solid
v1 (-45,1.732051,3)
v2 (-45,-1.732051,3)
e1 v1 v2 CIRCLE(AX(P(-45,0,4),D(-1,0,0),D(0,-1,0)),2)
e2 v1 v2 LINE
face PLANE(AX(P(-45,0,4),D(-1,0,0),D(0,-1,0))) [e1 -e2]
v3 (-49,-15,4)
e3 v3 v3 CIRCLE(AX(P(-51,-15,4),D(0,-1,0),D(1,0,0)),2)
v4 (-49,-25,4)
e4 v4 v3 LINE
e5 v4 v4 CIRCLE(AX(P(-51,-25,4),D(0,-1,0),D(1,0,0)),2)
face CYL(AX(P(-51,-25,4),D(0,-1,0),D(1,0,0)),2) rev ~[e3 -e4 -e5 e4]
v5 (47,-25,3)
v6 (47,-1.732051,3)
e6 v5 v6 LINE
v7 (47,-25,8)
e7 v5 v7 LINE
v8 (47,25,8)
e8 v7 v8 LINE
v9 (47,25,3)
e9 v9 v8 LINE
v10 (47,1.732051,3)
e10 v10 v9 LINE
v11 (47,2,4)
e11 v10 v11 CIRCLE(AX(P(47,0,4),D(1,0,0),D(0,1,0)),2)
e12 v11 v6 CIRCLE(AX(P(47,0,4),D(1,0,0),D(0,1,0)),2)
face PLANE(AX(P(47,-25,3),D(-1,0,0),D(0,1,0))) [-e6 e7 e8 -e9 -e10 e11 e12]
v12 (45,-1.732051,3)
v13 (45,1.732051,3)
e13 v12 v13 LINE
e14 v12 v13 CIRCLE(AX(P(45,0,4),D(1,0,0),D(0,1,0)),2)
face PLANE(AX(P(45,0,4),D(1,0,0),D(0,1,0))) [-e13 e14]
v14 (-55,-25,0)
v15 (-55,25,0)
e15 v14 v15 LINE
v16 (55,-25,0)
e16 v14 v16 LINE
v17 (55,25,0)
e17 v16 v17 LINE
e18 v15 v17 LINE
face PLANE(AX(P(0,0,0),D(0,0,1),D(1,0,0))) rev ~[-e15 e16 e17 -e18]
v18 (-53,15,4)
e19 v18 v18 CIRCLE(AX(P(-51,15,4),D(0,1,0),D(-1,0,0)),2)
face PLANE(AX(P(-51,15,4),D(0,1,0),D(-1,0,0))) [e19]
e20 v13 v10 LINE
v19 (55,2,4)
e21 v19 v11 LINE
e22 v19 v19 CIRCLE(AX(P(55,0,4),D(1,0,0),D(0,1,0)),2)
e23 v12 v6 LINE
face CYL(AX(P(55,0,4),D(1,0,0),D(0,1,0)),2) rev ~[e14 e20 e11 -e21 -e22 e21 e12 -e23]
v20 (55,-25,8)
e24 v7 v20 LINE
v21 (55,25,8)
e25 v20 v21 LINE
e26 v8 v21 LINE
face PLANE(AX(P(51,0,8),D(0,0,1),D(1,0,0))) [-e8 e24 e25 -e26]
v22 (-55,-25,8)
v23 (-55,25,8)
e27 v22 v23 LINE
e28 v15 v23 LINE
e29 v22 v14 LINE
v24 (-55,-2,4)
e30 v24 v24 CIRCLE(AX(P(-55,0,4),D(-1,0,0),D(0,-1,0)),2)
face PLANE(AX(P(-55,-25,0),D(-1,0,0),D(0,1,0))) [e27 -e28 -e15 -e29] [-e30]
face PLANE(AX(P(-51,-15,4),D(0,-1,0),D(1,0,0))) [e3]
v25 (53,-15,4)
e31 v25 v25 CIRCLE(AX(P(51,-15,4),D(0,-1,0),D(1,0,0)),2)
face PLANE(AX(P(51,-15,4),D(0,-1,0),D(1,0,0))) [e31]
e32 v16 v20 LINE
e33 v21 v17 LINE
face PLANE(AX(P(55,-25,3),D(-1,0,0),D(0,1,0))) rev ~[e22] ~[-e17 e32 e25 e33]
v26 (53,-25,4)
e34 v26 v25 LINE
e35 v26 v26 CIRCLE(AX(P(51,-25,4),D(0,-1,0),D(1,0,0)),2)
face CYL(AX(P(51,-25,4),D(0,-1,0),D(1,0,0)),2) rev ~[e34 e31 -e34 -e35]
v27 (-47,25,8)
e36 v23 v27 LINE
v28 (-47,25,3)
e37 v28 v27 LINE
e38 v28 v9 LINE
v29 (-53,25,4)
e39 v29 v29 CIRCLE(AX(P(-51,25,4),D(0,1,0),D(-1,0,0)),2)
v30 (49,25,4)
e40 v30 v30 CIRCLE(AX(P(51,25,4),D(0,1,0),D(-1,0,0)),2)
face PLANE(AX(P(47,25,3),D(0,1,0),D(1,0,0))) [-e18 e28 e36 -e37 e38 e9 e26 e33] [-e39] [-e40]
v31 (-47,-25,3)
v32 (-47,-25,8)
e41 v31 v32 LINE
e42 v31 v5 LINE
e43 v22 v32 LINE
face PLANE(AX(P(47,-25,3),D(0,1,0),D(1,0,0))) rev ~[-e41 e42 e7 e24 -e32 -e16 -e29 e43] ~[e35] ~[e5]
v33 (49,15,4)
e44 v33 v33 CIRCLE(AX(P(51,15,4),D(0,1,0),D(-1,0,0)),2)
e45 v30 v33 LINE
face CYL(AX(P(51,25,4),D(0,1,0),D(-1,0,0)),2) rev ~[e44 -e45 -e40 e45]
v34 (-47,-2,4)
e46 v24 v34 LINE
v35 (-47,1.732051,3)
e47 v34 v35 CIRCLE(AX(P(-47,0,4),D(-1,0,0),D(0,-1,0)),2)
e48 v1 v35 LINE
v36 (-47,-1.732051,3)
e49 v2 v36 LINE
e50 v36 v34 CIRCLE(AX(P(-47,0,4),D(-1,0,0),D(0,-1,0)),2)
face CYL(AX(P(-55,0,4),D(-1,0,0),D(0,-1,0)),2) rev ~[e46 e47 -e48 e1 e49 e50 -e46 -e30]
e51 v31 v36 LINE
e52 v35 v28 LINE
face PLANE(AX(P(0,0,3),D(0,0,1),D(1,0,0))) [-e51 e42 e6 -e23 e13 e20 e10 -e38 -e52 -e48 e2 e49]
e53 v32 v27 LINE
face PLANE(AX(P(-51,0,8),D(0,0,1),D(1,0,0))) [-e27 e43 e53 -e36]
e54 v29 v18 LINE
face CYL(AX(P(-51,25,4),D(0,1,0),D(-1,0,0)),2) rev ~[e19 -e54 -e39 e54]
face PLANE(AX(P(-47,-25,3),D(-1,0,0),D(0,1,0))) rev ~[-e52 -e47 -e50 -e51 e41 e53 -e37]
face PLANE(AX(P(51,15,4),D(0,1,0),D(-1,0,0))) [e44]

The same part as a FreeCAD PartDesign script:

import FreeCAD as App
import Part
import Sketcher

V = App.Vector

doc = App.newDocument("Part")
params = doc.addObject("Spreadsheet::Sheet", "Params")
for row, (alias, value) in enumerate([
    ("sketch1_width", "110 mm"),
    ("sketch1_height", "50 mm"),
    ("pad1_length", "3 mm"),
    ("sketch2_width", "8 mm"),
    ("sketch2_height", "50 mm"),
    ("pad2_length", "5 mm"),
    ("sketch3_diameter", "4 mm"),
    ("pocket1_length", "10 mm"),
    ("sketch4_diameter", "4 mm"),
    ("pocket2_length", "10 mm"),
    ("sketch5_diameter", "4 mm"),
    ("pocket3_length", "10 mm"),
    ("sketch6_diameter", "4 mm"),
    ("pocket4_length", "10 mm"),
], start=1):
    params.set(f"A{row}", alias)
    params.set(f"B{row}", "=" + value)
    params.setAlias(f"B{row}", alias)

body = doc.addObject("PartDesign::Body", "Body")

# Sketch on XY plane
sketch1 = body.newObject("Sketcher::SketchObject", "Sketch")
sketch1.AttachmentSupport = (doc.getObject("XY_Plane"), [""])
sketch1.MapMode = "FlatFace"
sketch1.addGeometry(Part.LineSegment(V(-55, 25, 0), V(-55, -25, 0)), False)
sketch1.addGeometry(Part.LineSegment(V(-55, -25, 0), V(55, -25, 0)), False)
sketch1.addGeometry(Part.LineSegment(V(55, -25, 0), V(55, 25, 0)), False)
sketch1.addGeometry(Part.LineSegment(V(55, 25, 0), V(-55, 25, 0)), False)
sketch1.addConstraint(Sketcher.Constraint("Coincident", 0, 2, 1, 1))
sketch1.addConstraint(Sketcher.Constraint("Coincident", 1, 2, 2, 1))
sketch1.addConstraint(Sketcher.Constraint("Coincident", 2, 2, 3, 1))
sketch1.addConstraint(Sketcher.Constraint("Coincident", 3, 2, 0, 1))
sketch1.addConstraint(Sketcher.Constraint("Vertical", 0))
sketch1.addConstraint(Sketcher.Constraint("Horizontal", 1))
sketch1.addConstraint(Sketcher.Constraint("Vertical", 2))
sketch1.addConstraint(Sketcher.Constraint("Horizontal", 3))
sketch1.addConstraint(Sketcher.Constraint("Symmetric", 0, 2, 2, 2, -1, 1))
sketch1.addConstraint(Sketcher.Constraint("DistanceX", 1, 1, 1, 2, 110.0))
sketch1.addConstraint(Sketcher.Constraint("DistanceY", 0, 2, 0, 1, 50.0))
sketch1.setExpression("Constraints[9]", "Params.sketch1_width")
sketch1.setExpression("Constraints[10]", "Params.sketch1_height")
pad1 = body.newObject("PartDesign::Pad", "Pad")
pad1.Profile = sketch1
pad1.setExpression("Length", "Params.pad1_length")

# Sketch on XY plane
sketch2 = body.newObject("Sketcher::SketchObject", "Sketch001")
sketch2.AttachmentSupport = (doc.getObject("XY_Plane"), [""])
sketch2.MapMode = "FlatFace"
sketch2.AttachmentOffset = App.Placement(V(0, 0, 3), App.Rotation())
sketch2.addGeometry(Part.LineSegment(V(47, 25, 0), V(47, -25, 0)), False)
sketch2.addGeometry(Part.LineSegment(V(47, -25, 0), V(55, -25, 0)), False)
sketch2.addGeometry(Part.LineSegment(V(55, -25, 0), V(55, 25, 0)), False)
sketch2.addGeometry(Part.LineSegment(V(55, 25, 0), V(47, 25, 0)), False)
sketch2.addGeometry(Part.LineSegment(V(-55, 25, 0), V(-55, -25, 0)), False)
sketch2.addGeometry(Part.LineSegment(V(-55, -25, 0), V(-47, -25, 0)), False)
sketch2.addGeometry(Part.LineSegment(V(-47, -25, 0), V(-47, 25, 0)), False)
sketch2.addGeometry(Part.LineSegment(V(-47, 25, 0), V(-55, 25, 0)), False)
sketch2.addConstraint(Sketcher.Constraint("Coincident", 0, 2, 1, 1))
sketch2.addConstraint(Sketcher.Constraint("Coincident", 1, 2, 2, 1))
sketch2.addConstraint(Sketcher.Constraint("Coincident", 2, 2, 3, 1))
sketch2.addConstraint(Sketcher.Constraint("Coincident", 3, 2, 0, 1))
sketch2.addConstraint(Sketcher.Constraint("Coincident", 4, 2, 5, 1))
sketch2.addConstraint(Sketcher.Constraint("Coincident", 5, 2, 6, 1))
sketch2.addConstraint(Sketcher.Constraint("Coincident", 6, 2, 7, 1))
sketch2.addConstraint(Sketcher.Constraint("Coincident", 7, 2, 4, 1))
sketch2.addConstraint(Sketcher.Constraint("Vertical", 0))
sketch2.addConstraint(Sketcher.Constraint("Horizontal", 1))
sketch2.addConstraint(Sketcher.Constraint("Vertical", 2))
sketch2.addConstraint(Sketcher.Constraint("Horizontal", 3))
sketch2.addConstraint(Sketcher.Constraint("Vertical", 4))
sketch2.addConstraint(Sketcher.Constraint("Horizontal", 5))
sketch2.addConstraint(Sketcher.Constraint("Vertical", 6))
sketch2.addConstraint(Sketcher.Constraint("Horizontal", 7))
sketch2.addConstraint(Sketcher.Constraint("Symmetric", 2, 2, 4, 2, -1, 1))
sketch2.addConstraint(Sketcher.Constraint("Symmetric", 0, 2, 6, 2, -1, 1))
sketch2.addConstraint(Sketcher.Constraint("Horizontal", 1, 2, 4, 2))
sketch2.addConstraint(Sketcher.Constraint("DistanceX", 1, 1, 1, 2, 8.0))
sketch2.addConstraint(Sketcher.Constraint("DistanceY", 0, 2, 0, 1, 50.0))
sketch2.addConstraint(Sketcher.Constraint("DistanceX", -1, 1, 0, 2, 47.0))
sketch2.setExpression("Constraints[19]", "Params.sketch2_width")
sketch2.setExpression("Constraints[20]", "Params.sketch2_height")
pad2 = body.newObject("PartDesign::Pad", "Pad001")
pad2.Profile = sketch2
pad2.setExpression("Length", "Params.pad2_length")

# Sketch on XZ plane
sketch3 = body.newObject("Sketcher::SketchObject", "Sketch002")
sketch3.AttachmentSupport = (doc.getObject("XZ_Plane"), [""])
sketch3.MapMode = "FlatFace"
sketch3.AttachmentOffset = App.Placement(V(0, 0, -25), App.Rotation())
sketch3.addGeometry(Part.Circle(V(-51, 4, 0), V(0, 0, 1), 2), False)
sketch3.addGeometry(Part.Circle(V(51, 4, 0), V(0, 0, 1), 2), False)
sketch3.addConstraint(Sketcher.Constraint("Equal", 0, 1))
sketch3.addConstraint(Sketcher.Constraint("Symmetric", 0, 3, 1, 3, -2))
sketch3.addConstraint(Sketcher.Constraint("Diameter", 0, 4.0))
sketch3.addConstraint(Sketcher.Constraint("DistanceX", 0, 3, -1, 1, 51.0))
sketch3.addConstraint(Sketcher.Constraint("DistanceY", -1, 1, 0, 3, 4.0))
sketch3.setExpression("Constraints[2]", "Params.sketch3_diameter")
pocket1 = body.newObject("PartDesign::Pocket", "Pocket")
pocket1.Profile = sketch3
pocket1.setExpression("Length", "Params.pocket1_length")
pocket1.Reversed = True

# Sketch on XZ plane
sketch4 = body.newObject("Sketcher::SketchObject", "Sketch003")
sketch4.AttachmentSupport = (doc.getObject("XZ_Plane"), [""])
sketch4.MapMode = "FlatFace"
sketch4.AttachmentOffset = App.Placement(V(0, 0, 25), App.Rotation())
sketch4.addGeometry(Part.Circle(V(-51, 4, 0), V(0, 0, 1), 2), False)
sketch4.addGeometry(Part.Circle(V(51, 4, 0), V(0, 0, 1), 2), False)
sketch4.addConstraint(Sketcher.Constraint("Equal", 0, 1))
sketch4.addConstraint(Sketcher.Constraint("Symmetric", 0, 3, 1, 3, -2))
sketch4.addConstraint(Sketcher.Constraint("Diameter", 0, 4.0))
sketch4.addConstraint(Sketcher.Constraint("DistanceX", 0, 3, -1, 1, 51.0))
sketch4.addConstraint(Sketcher.Constraint("DistanceY", -1, 1, 0, 3, 4.0))
sketch4.setExpression("Constraints[2]", "Params.sketch4_diameter")
pocket2 = body.newObject("PartDesign::Pocket", "Pocket001")
pocket2.Profile = sketch4
pocket2.setExpression("Length", "Params.pocket2_length")

# Sketch on YZ plane
sketch5 = body.newObject("Sketcher::SketchObject", "Sketch004")
sketch5.AttachmentSupport = (doc.getObject("YZ_Plane"), [""])
sketch5.MapMode = "FlatFace"
sketch5.AttachmentOffset = App.Placement(V(0, 0, -55), App.Rotation())
sketch5.addGeometry(Part.Circle(V(0, 4, 0), V(0, 0, 1), 2), False)
sketch5.addConstraint(Sketcher.Constraint("PointOnObject", 0, 3, -2))
sketch5.addConstraint(Sketcher.Constraint("Diameter", 0, 4.0))
sketch5.addConstraint(Sketcher.Constraint("DistanceY", -1, 1, 0, 3, 4.0))
sketch5.setExpression("Constraints[1]", "Params.sketch5_diameter")
pocket3 = body.newObject("PartDesign::Pocket", "Pocket002")
pocket3.Profile = sketch5
pocket3.setExpression("Length", "Params.pocket3_length")
pocket3.Reversed = True

# Sketch on YZ plane
sketch6 = body.newObject("Sketcher::SketchObject", "Sketch005")
sketch6.AttachmentSupport = (doc.getObject("YZ_Plane"), [""])
sketch6.MapMode = "FlatFace"
sketch6.AttachmentOffset = App.Placement(V(0, 0, 55), App.Rotation())
sketch6.addGeometry(Part.Circle(V(0, 4, 0), V(0, 0, 1), 2), False)
sketch6.addConstraint(Sketcher.Constraint("PointOnObject", 0, 3, -2))
sketch6.addConstraint(Sketcher.Constraint("Diameter", 0, 4.0))
sketch6.addConstraint(Sketcher.Constraint("DistanceY", -1, 1, 0, 3, 4.0))
sketch6.setExpression("Constraints[1]", "Params.sketch6_diameter")
pocket4 = body.newObject("PartDesign::Pocket", "Pocket003")
pocket4.Profile = sketch6
pocket4.setExpression("Length", "Params.pocket4_length")

doc.recompute()
